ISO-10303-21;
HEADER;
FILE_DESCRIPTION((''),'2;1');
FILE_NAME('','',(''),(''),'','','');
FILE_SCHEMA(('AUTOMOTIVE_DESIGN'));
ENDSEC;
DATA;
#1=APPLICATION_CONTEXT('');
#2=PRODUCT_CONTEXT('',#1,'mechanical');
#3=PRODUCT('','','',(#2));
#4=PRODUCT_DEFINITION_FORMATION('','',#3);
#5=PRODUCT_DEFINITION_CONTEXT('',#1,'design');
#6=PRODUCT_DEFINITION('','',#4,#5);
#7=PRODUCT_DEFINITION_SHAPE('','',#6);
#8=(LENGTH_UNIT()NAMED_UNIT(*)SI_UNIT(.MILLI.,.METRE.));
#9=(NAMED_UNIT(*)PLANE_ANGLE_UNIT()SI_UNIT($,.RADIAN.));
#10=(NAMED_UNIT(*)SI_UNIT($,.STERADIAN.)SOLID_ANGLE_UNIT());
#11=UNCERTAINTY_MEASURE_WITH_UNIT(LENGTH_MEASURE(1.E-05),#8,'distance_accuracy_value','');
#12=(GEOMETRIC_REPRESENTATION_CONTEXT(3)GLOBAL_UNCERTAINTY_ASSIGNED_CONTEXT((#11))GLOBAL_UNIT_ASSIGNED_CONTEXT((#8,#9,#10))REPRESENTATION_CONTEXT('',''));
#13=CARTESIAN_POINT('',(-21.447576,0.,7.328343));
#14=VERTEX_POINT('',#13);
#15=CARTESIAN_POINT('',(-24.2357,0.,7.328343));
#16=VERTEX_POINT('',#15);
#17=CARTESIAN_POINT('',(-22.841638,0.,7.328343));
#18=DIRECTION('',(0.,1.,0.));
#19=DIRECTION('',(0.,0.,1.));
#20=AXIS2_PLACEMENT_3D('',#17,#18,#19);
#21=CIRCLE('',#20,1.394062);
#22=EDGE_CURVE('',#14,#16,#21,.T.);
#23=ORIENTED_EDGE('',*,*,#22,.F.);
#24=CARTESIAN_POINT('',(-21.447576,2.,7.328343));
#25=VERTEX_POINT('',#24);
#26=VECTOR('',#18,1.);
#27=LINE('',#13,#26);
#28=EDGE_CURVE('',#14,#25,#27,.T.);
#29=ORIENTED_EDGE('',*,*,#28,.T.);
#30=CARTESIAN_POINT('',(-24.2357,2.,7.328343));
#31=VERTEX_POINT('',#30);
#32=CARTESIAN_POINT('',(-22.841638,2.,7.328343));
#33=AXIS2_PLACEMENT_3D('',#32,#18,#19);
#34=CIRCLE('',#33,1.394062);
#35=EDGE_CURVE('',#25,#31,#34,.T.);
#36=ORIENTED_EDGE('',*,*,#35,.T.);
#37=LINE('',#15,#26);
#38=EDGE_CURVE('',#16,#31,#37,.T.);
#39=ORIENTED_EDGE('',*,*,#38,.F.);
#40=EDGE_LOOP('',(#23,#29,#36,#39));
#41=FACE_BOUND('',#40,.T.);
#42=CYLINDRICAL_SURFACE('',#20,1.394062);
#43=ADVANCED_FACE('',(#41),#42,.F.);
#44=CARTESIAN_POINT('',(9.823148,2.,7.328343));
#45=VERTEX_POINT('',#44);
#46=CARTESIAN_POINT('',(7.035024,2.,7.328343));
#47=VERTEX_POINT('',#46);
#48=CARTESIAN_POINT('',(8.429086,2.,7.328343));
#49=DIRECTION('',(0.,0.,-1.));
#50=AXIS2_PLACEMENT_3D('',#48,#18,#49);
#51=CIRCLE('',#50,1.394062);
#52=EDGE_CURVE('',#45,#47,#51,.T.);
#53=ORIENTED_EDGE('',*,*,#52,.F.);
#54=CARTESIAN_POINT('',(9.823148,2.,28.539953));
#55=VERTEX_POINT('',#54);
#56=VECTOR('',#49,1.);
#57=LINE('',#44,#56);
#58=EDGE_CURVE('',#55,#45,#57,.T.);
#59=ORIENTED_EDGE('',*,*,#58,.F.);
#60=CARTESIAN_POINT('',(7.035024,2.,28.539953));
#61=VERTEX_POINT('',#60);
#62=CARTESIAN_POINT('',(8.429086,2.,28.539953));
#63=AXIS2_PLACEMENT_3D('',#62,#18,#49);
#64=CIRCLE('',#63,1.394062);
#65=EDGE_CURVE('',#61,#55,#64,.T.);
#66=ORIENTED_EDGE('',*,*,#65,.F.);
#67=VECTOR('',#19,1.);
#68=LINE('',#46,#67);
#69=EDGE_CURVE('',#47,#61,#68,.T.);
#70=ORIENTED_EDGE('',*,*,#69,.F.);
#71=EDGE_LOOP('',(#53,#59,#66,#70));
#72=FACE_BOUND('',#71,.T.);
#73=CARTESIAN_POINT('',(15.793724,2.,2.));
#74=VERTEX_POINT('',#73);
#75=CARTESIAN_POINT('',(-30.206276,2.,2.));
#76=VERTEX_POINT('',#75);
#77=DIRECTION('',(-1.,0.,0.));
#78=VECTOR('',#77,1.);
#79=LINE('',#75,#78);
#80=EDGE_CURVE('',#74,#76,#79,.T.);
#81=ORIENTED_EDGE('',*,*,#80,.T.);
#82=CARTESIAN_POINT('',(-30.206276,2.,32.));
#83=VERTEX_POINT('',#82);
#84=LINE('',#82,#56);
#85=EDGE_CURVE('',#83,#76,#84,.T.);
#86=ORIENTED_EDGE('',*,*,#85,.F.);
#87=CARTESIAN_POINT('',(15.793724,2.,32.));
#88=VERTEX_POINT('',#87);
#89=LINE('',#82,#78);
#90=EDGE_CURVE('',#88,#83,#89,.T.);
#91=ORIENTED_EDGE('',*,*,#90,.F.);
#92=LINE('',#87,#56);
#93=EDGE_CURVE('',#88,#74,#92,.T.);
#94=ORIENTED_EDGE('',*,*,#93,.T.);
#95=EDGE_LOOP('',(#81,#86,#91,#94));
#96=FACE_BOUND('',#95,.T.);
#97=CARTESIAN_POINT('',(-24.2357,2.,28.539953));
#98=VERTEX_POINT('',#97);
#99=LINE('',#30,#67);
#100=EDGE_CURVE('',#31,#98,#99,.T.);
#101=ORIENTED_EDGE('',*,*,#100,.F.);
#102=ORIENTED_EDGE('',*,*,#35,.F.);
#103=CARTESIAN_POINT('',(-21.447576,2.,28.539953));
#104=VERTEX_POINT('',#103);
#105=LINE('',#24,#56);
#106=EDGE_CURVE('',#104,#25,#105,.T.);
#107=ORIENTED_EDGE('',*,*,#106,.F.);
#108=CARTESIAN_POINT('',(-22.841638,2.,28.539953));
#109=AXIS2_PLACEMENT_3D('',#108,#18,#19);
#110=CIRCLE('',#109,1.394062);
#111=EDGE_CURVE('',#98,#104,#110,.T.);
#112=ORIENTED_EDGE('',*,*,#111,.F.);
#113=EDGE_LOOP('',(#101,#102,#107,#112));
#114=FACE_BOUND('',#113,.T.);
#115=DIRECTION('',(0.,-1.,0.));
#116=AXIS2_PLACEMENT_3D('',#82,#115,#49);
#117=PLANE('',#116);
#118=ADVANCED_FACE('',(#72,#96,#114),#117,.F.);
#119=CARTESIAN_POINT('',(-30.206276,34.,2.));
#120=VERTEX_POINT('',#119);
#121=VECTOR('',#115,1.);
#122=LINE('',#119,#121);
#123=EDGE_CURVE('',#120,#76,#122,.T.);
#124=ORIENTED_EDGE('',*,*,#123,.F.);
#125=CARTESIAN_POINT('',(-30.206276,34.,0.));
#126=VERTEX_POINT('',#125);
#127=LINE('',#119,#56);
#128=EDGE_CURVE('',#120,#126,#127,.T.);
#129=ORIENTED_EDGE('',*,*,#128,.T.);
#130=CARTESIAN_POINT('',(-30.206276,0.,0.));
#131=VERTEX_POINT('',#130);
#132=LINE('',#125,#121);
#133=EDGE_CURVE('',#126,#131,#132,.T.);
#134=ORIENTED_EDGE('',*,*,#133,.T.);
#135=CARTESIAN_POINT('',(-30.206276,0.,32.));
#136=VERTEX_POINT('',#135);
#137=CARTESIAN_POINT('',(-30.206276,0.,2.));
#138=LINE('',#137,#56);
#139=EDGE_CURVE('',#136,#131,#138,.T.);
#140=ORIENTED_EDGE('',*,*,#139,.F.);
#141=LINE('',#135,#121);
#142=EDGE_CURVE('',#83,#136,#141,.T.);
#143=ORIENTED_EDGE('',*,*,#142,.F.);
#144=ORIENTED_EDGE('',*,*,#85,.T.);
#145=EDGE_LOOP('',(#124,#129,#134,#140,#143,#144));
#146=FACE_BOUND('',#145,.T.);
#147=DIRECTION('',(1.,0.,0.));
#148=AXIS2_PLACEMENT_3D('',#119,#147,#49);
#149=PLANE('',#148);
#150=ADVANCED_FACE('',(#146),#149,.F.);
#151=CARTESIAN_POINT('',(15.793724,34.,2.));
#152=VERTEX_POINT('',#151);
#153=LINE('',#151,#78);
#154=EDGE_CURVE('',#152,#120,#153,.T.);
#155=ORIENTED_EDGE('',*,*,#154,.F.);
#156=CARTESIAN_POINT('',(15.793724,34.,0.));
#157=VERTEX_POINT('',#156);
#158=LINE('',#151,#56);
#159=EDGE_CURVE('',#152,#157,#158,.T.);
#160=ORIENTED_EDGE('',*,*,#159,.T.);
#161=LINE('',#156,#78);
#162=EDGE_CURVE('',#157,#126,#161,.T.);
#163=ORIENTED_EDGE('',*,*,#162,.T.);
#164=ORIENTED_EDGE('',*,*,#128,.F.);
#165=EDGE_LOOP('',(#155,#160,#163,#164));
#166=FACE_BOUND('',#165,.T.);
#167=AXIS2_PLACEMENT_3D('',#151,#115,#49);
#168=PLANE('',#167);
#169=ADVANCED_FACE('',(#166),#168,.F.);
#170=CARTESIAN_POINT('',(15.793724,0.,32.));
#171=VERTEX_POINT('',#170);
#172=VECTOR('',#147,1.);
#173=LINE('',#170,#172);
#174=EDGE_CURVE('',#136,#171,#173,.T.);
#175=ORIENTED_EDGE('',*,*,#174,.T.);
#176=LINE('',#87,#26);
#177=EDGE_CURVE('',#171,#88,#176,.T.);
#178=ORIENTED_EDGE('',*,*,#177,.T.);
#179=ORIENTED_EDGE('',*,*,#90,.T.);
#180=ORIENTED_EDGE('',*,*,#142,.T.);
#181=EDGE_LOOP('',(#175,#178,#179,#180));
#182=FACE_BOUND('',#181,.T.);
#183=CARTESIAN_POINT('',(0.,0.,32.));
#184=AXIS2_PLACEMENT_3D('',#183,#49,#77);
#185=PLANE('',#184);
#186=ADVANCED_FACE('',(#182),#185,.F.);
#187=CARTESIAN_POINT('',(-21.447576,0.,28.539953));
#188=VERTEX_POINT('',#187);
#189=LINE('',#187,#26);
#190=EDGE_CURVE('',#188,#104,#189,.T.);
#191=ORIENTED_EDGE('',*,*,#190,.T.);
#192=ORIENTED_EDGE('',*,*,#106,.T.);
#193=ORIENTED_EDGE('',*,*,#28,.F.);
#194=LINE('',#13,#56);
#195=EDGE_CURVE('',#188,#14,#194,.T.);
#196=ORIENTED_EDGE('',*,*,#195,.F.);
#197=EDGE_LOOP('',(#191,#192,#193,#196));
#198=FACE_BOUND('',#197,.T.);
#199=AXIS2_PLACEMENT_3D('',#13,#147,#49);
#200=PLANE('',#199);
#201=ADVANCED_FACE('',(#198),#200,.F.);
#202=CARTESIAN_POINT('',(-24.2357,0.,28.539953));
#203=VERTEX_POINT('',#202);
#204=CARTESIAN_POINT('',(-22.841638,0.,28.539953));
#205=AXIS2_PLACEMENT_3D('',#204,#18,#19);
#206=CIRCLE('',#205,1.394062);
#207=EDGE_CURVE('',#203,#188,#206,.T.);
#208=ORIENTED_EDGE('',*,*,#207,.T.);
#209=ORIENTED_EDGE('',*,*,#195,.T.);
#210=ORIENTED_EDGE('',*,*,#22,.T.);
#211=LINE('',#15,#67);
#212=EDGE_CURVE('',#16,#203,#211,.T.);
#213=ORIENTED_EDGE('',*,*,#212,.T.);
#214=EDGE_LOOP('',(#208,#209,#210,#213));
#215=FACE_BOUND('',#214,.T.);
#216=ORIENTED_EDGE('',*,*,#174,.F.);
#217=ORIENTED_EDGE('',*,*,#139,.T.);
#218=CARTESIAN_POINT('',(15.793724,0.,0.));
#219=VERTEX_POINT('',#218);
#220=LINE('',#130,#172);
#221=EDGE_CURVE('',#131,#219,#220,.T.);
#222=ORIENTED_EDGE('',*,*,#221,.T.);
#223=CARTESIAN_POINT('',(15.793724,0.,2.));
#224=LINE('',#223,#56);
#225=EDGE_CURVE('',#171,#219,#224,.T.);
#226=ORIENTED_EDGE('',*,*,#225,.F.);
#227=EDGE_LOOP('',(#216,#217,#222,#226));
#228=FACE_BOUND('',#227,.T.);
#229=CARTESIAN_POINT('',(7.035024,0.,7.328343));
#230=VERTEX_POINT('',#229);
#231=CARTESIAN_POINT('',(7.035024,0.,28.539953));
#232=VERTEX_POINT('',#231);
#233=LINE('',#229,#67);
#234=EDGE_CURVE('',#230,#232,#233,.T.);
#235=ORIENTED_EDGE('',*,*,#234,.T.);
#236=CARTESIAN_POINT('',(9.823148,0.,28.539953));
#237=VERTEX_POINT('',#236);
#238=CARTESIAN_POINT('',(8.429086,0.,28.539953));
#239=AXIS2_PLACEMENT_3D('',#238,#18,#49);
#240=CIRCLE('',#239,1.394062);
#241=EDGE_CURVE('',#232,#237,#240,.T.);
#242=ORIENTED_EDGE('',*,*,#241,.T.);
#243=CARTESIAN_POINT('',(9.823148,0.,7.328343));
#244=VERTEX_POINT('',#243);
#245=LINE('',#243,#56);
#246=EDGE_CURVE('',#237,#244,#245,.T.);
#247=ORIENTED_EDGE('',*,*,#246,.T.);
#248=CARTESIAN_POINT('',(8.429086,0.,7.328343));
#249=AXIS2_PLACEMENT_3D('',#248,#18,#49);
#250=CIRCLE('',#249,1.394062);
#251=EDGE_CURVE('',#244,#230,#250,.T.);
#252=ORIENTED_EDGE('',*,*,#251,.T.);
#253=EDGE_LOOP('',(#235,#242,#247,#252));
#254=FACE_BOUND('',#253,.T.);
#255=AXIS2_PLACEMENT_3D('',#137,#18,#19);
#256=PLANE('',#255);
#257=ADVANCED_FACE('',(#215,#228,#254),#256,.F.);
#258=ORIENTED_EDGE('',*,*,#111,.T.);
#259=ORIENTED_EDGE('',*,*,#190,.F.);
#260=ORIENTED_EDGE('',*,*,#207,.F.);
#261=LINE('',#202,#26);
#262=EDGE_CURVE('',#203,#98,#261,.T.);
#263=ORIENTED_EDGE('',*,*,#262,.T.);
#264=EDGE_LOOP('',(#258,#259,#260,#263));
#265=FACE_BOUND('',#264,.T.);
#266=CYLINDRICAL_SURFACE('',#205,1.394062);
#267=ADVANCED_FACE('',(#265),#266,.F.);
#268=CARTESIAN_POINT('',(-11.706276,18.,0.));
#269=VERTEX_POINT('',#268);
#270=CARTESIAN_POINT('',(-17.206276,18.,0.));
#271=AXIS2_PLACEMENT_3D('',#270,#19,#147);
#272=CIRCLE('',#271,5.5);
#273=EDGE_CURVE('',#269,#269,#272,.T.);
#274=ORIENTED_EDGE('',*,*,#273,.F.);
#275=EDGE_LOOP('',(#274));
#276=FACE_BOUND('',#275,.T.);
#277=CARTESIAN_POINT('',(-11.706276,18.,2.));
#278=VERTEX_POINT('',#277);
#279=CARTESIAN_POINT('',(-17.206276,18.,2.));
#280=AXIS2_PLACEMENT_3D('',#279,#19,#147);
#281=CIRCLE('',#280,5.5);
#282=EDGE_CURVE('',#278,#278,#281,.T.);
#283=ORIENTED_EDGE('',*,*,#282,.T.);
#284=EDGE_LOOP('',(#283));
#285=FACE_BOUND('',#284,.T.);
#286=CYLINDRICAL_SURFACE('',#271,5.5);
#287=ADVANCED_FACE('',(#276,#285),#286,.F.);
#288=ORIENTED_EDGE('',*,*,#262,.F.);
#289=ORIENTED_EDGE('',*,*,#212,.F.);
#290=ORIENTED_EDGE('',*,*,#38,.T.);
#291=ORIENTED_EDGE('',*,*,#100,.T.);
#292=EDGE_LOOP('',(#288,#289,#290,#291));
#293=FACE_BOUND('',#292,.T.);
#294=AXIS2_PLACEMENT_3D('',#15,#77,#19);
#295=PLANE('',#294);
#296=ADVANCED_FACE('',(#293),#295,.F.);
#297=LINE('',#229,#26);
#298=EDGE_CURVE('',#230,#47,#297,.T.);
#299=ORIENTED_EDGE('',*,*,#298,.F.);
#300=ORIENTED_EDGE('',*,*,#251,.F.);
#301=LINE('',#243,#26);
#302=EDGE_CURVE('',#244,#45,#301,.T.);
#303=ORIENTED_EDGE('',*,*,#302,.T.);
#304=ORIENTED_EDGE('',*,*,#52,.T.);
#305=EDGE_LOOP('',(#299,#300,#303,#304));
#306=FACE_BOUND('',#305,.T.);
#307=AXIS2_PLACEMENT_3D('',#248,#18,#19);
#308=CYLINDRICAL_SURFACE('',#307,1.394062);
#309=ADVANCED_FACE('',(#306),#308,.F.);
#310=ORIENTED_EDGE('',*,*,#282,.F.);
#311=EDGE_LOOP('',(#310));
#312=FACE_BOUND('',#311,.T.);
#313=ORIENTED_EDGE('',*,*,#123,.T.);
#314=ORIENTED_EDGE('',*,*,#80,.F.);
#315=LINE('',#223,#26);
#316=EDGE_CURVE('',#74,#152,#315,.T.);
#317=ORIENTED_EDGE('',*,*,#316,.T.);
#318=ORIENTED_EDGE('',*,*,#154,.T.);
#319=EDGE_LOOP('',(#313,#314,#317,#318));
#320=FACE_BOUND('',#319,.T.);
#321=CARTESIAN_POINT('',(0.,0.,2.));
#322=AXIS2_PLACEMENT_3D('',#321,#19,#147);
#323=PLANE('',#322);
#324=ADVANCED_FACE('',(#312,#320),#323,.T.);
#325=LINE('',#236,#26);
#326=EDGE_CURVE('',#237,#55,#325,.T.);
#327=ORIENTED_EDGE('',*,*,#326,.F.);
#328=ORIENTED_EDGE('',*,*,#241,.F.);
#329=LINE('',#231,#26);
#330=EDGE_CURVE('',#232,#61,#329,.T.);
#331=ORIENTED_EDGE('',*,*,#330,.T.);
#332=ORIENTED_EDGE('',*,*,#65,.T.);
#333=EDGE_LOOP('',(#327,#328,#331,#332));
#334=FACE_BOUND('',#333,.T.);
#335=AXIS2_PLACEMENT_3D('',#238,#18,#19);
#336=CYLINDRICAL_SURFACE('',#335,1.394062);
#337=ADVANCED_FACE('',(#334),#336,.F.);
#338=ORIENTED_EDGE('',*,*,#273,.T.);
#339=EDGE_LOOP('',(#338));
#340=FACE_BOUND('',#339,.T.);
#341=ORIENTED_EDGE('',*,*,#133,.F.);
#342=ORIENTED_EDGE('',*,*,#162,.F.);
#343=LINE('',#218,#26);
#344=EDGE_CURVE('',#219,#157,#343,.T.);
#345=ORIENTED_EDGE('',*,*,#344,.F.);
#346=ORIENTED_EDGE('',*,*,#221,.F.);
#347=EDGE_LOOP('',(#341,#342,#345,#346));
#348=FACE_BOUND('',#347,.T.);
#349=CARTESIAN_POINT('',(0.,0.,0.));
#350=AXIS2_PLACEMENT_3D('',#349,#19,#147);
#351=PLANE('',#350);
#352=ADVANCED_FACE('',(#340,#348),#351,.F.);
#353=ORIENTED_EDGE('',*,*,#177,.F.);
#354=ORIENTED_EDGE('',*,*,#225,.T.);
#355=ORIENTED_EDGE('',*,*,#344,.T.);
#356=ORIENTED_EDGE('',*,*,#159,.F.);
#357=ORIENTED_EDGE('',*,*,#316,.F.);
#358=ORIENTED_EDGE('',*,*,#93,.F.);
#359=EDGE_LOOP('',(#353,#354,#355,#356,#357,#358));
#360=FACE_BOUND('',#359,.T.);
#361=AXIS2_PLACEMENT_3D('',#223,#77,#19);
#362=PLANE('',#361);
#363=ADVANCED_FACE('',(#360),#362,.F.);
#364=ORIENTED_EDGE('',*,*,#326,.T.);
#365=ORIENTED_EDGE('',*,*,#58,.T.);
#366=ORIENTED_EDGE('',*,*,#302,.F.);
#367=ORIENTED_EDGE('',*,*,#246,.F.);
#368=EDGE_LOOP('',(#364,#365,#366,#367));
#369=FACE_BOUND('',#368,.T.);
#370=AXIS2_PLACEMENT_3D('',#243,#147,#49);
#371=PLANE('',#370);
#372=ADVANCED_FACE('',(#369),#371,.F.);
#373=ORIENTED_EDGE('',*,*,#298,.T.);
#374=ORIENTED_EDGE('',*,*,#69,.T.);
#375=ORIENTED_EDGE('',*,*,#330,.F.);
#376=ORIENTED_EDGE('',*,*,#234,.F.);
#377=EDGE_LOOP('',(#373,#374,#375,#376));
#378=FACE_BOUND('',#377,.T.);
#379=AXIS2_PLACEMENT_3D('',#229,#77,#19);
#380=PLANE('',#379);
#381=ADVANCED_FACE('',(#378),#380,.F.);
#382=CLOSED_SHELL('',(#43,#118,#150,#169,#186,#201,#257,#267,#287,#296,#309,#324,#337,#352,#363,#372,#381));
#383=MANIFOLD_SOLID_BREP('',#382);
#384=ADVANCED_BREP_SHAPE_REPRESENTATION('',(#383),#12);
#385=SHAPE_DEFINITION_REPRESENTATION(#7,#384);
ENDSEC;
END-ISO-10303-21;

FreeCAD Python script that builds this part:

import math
import FreeCAD as App
import Part
import Sketcher

doc = App.newDocument("Part")
body = doc.addObject("PartDesign::Body", "Body")

# Sketch on XY plane
sketch1 = body.newObject("Sketcher::SketchObject", "Sketch")
sketch1.AttachmentSupport = (doc.getObject("XY_Plane"), [""])
sketch1.MapMode = "FlatFace"
sketch1.addGeometry([
    Part.LineSegment(App.Vector(-30, 34, 0), App.Vector(-30, 0, 0)),
    Part.LineSegment(App.Vector(-30, 0, 0), App.Vector(16, 0, 0)),
    Part.LineSegment(App.Vector(16, 0, 0), App.Vector(16, 34, 0)),
    Part.LineSegment(App.Vector(16, 34, 0), App.Vector(-30, 34, 0)),
], False)
sketch1.addConstraint([
    Sketcher.Constraint("Coincident", 0, 2, 1, 1),
    Sketcher.Constraint("Coincident", 1, 2, 2, 1),
    Sketcher.Constraint("Coincident", 2, 2, 3, 1),
    Sketcher.Constraint("Coincident", 3, 2, 0, 1),
    Sketcher.Constraint("Vertical", 0),
    Sketcher.Constraint("Horizontal", 1),
    Sketcher.Constraint("Vertical", 2),
    Sketcher.Constraint("Horizontal", 3),
    Sketcher.Constraint("PointOnObject", 0, 2, -1),
    Sketcher.Constraint("DistanceX", 1, 1, 1, 2, 46.0),
    Sketcher.Constraint("DistanceY", 0, 2, 0, 1, 34.0),
    Sketcher.Constraint("DistanceX", 0, 2, -1, 1, 30.206276),
])
pad1 = body.newObject("PartDesign::Pad", "Pad")
pad1.Profile = sketch1
pad1.Length = 2

# Sketch on XY plane
sketch2 = body.newObject("Sketcher::SketchObject", "Sketch001")
sketch2.AttachmentSupport = (doc.getObject("XY_Plane"), [""])
sketch2.MapMode = "FlatFace"
sketch2.AttachmentOffset = App.Placement(App.Vector(0, 0, 2), App.Rotation())
sketch2.addGeometry([
    Part.LineSegment(App.Vector(-30.2, 2, 0), App.Vector(-30.2, 0, 0)),
    Part.LineSegment(App.Vector(-30.2, 0, 0), App.Vector(15.8, 0, 0)),
    Part.LineSegment(App.Vector(15.8, 0, 0), App.Vector(15.8, 2, 0)),
    Part.LineSegment(App.Vector(15.8, 2, 0), App.Vector(-30.2, 2, 0)),
], False)
sketch2.addConstraint([
    Sketcher.Constraint("Coincident", 0, 2, 1, 1),
    Sketcher.Constraint("Coincident", 1, 2, 2, 1),
    Sketcher.Constraint("Coincident", 2, 2, 3, 1),
    Sketcher.Constraint("Coincident", 3, 2, 0, 1),
    Sketcher.Constraint("Vertical", 0),
    Sketcher.Constraint("Horizontal", 1),
    Sketcher.Constraint("Vertical", 2),
    Sketcher.Constraint("Horizontal", 3),
    Sketcher.Constraint("PointOnObject", 0, 2, -1),
    Sketcher.Constraint("DistanceX", 1, 1, 1, 2, 46.0),
    Sketcher.Constraint("DistanceY", 0, 2, 0, 1, 2.0),
    Sketcher.Constraint("DistanceX", 0, 2, -1, 1, 30.206276),
])
pad2 = body.newObject("PartDesign::Pad", "Pad001")
pad2.Profile = sketch2
pad2.Length = 30

# Sketch on XY plane
sketch3 = body.newObject("Sketcher::SketchObject", "Sketch002")
sketch3.AttachmentSupport = (doc.getObject("XY_Plane"), [""])
sketch3.MapMode = "FlatFace"
sketch3.AttachmentOffset = App.Placement(App.Vector(0, 0, 2), App.Rotation())
sketch3.addGeometry(Part.Circle(App.Vector(-17, 18, 0), App.Vector(0, 0, 1), 6), False)
sketch3.addConstraint([
    Sketcher.Constraint("Diameter", 0, 11.0),
    Sketcher.Constraint("DistanceY", -1, 1, 0, 3, 18.0),
    Sketcher.Constraint("DistanceX", 0, 3, -1, 1, 17.206276),
])
pocket1 = body.newObject("PartDesign::Pocket", "Pocket")
pocket1.Profile = sketch3
pocket1.Length = 2

# Sketch on XZ plane
sketch4 = body.newObject("Sketcher::SketchObject", "Sketch003")
sketch4.AttachmentSupport = (doc.getObject("XZ_Plane"), [""])
sketch4.MapMode = "FlatFace"
sketch4.AttachmentOffset = App.Placement(App.Vector(0, 0, -2), App.Rotation())
sketch4.addGeometry([
    Part.LineSegment(App.Vector(-24.2, 7.3, 0), App.Vector(-24.2, 28.5, 0)),  # 0
    Part.ArcOfCircle(Part.Circle(App.Vector(-22.8, 28.5, 0), App.Vector(0, 0, 1), 1.4), math.radians(0), math.radians(180)),  # 1
    Part.LineSegment(App.Vector(-21.4, 28.5, 0), App.Vector(-21.4, 7.3, 0)),  # 2
    Part.ArcOfCircle(Part.Circle(App.Vector(-22.8, 7.3, 0), App.Vector(0, 0, 1), 1.4), math.radians(180), math.radians(360)),  # 3
    Part.LineSegment(App.Vector(7, 7.3, 0), App.Vector(7, 28.5, 0)),  # 4
    Part.ArcOfCircle(Part.Circle(App.Vector(8.4, 28.5, 0), App.Vector(0, 0, 1), 1.4), math.radians(0), math.radians(180)),  # 5
    Part.LineSegment(App.Vector(9.8, 28.5, 0), App.Vector(9.8, 7.3, 0)),  # 6
    Part.ArcOfCircle(Part.Circle(App.Vector(8.4, 7.3, 0), App.Vector(0, 0, 1), 1.4), math.radians(180), math.radians(360)),  # 7
], False)
sketch4.addConstraint([
    Sketcher.Constraint("Tangent", 0, 2, 1, 2),
    Sketcher.Constraint("Tangent", 1, 1, 2, 1),
    Sketcher.Constraint("Tangent", 2, 2, 3, 2),
    Sketcher.Constraint("Tangent", 3, 1, 0, 1),
    Sketcher.Constraint("Tangent", 4, 2, 5, 2),
    Sketcher.Constraint("Tangent", 5, 1, 6, 1),
    Sketcher.Constraint("Tangent", 6, 2, 7, 2),
    Sketcher.Constraint("Tangent", 7, 1, 4, 1),
    Sketcher.Constraint("Vertical", 0),
    Sketcher.Constraint("Vertical", 2),
    Sketcher.Constraint("Vertical", 4),
    Sketcher.Constraint("Vertical", 6),
    Sketcher.Constraint("Equal", 3, 5),
    Sketcher.Constraint("Horizontal", 1, 3, 5, 3),
    Sketcher.Constraint("Horizontal", 3, 3, 7, 3),
    Sketcher.Constraint("Radius", 1, 1.394062),
    Sketcher.Constraint("DistanceY", 0, 1, 0, 2, 21.21161),
    Sketcher.Constraint("DistanceX", 0, 2, -1, 1, 24.2357),
    Sketcher.Constraint("DistanceX", 1, 1, 4, 2, 28.4826),
    Sketcher.Constraint("DistanceY", -1, 1, 1, 3, 28.539953),
])
pocket2 = body.newObject("PartDesign::Pocket", "Pocket001")
pocket2.Profile = sketch4
pocket2.Length = 2
pocket2.Reversed = True

doc.recompute()
